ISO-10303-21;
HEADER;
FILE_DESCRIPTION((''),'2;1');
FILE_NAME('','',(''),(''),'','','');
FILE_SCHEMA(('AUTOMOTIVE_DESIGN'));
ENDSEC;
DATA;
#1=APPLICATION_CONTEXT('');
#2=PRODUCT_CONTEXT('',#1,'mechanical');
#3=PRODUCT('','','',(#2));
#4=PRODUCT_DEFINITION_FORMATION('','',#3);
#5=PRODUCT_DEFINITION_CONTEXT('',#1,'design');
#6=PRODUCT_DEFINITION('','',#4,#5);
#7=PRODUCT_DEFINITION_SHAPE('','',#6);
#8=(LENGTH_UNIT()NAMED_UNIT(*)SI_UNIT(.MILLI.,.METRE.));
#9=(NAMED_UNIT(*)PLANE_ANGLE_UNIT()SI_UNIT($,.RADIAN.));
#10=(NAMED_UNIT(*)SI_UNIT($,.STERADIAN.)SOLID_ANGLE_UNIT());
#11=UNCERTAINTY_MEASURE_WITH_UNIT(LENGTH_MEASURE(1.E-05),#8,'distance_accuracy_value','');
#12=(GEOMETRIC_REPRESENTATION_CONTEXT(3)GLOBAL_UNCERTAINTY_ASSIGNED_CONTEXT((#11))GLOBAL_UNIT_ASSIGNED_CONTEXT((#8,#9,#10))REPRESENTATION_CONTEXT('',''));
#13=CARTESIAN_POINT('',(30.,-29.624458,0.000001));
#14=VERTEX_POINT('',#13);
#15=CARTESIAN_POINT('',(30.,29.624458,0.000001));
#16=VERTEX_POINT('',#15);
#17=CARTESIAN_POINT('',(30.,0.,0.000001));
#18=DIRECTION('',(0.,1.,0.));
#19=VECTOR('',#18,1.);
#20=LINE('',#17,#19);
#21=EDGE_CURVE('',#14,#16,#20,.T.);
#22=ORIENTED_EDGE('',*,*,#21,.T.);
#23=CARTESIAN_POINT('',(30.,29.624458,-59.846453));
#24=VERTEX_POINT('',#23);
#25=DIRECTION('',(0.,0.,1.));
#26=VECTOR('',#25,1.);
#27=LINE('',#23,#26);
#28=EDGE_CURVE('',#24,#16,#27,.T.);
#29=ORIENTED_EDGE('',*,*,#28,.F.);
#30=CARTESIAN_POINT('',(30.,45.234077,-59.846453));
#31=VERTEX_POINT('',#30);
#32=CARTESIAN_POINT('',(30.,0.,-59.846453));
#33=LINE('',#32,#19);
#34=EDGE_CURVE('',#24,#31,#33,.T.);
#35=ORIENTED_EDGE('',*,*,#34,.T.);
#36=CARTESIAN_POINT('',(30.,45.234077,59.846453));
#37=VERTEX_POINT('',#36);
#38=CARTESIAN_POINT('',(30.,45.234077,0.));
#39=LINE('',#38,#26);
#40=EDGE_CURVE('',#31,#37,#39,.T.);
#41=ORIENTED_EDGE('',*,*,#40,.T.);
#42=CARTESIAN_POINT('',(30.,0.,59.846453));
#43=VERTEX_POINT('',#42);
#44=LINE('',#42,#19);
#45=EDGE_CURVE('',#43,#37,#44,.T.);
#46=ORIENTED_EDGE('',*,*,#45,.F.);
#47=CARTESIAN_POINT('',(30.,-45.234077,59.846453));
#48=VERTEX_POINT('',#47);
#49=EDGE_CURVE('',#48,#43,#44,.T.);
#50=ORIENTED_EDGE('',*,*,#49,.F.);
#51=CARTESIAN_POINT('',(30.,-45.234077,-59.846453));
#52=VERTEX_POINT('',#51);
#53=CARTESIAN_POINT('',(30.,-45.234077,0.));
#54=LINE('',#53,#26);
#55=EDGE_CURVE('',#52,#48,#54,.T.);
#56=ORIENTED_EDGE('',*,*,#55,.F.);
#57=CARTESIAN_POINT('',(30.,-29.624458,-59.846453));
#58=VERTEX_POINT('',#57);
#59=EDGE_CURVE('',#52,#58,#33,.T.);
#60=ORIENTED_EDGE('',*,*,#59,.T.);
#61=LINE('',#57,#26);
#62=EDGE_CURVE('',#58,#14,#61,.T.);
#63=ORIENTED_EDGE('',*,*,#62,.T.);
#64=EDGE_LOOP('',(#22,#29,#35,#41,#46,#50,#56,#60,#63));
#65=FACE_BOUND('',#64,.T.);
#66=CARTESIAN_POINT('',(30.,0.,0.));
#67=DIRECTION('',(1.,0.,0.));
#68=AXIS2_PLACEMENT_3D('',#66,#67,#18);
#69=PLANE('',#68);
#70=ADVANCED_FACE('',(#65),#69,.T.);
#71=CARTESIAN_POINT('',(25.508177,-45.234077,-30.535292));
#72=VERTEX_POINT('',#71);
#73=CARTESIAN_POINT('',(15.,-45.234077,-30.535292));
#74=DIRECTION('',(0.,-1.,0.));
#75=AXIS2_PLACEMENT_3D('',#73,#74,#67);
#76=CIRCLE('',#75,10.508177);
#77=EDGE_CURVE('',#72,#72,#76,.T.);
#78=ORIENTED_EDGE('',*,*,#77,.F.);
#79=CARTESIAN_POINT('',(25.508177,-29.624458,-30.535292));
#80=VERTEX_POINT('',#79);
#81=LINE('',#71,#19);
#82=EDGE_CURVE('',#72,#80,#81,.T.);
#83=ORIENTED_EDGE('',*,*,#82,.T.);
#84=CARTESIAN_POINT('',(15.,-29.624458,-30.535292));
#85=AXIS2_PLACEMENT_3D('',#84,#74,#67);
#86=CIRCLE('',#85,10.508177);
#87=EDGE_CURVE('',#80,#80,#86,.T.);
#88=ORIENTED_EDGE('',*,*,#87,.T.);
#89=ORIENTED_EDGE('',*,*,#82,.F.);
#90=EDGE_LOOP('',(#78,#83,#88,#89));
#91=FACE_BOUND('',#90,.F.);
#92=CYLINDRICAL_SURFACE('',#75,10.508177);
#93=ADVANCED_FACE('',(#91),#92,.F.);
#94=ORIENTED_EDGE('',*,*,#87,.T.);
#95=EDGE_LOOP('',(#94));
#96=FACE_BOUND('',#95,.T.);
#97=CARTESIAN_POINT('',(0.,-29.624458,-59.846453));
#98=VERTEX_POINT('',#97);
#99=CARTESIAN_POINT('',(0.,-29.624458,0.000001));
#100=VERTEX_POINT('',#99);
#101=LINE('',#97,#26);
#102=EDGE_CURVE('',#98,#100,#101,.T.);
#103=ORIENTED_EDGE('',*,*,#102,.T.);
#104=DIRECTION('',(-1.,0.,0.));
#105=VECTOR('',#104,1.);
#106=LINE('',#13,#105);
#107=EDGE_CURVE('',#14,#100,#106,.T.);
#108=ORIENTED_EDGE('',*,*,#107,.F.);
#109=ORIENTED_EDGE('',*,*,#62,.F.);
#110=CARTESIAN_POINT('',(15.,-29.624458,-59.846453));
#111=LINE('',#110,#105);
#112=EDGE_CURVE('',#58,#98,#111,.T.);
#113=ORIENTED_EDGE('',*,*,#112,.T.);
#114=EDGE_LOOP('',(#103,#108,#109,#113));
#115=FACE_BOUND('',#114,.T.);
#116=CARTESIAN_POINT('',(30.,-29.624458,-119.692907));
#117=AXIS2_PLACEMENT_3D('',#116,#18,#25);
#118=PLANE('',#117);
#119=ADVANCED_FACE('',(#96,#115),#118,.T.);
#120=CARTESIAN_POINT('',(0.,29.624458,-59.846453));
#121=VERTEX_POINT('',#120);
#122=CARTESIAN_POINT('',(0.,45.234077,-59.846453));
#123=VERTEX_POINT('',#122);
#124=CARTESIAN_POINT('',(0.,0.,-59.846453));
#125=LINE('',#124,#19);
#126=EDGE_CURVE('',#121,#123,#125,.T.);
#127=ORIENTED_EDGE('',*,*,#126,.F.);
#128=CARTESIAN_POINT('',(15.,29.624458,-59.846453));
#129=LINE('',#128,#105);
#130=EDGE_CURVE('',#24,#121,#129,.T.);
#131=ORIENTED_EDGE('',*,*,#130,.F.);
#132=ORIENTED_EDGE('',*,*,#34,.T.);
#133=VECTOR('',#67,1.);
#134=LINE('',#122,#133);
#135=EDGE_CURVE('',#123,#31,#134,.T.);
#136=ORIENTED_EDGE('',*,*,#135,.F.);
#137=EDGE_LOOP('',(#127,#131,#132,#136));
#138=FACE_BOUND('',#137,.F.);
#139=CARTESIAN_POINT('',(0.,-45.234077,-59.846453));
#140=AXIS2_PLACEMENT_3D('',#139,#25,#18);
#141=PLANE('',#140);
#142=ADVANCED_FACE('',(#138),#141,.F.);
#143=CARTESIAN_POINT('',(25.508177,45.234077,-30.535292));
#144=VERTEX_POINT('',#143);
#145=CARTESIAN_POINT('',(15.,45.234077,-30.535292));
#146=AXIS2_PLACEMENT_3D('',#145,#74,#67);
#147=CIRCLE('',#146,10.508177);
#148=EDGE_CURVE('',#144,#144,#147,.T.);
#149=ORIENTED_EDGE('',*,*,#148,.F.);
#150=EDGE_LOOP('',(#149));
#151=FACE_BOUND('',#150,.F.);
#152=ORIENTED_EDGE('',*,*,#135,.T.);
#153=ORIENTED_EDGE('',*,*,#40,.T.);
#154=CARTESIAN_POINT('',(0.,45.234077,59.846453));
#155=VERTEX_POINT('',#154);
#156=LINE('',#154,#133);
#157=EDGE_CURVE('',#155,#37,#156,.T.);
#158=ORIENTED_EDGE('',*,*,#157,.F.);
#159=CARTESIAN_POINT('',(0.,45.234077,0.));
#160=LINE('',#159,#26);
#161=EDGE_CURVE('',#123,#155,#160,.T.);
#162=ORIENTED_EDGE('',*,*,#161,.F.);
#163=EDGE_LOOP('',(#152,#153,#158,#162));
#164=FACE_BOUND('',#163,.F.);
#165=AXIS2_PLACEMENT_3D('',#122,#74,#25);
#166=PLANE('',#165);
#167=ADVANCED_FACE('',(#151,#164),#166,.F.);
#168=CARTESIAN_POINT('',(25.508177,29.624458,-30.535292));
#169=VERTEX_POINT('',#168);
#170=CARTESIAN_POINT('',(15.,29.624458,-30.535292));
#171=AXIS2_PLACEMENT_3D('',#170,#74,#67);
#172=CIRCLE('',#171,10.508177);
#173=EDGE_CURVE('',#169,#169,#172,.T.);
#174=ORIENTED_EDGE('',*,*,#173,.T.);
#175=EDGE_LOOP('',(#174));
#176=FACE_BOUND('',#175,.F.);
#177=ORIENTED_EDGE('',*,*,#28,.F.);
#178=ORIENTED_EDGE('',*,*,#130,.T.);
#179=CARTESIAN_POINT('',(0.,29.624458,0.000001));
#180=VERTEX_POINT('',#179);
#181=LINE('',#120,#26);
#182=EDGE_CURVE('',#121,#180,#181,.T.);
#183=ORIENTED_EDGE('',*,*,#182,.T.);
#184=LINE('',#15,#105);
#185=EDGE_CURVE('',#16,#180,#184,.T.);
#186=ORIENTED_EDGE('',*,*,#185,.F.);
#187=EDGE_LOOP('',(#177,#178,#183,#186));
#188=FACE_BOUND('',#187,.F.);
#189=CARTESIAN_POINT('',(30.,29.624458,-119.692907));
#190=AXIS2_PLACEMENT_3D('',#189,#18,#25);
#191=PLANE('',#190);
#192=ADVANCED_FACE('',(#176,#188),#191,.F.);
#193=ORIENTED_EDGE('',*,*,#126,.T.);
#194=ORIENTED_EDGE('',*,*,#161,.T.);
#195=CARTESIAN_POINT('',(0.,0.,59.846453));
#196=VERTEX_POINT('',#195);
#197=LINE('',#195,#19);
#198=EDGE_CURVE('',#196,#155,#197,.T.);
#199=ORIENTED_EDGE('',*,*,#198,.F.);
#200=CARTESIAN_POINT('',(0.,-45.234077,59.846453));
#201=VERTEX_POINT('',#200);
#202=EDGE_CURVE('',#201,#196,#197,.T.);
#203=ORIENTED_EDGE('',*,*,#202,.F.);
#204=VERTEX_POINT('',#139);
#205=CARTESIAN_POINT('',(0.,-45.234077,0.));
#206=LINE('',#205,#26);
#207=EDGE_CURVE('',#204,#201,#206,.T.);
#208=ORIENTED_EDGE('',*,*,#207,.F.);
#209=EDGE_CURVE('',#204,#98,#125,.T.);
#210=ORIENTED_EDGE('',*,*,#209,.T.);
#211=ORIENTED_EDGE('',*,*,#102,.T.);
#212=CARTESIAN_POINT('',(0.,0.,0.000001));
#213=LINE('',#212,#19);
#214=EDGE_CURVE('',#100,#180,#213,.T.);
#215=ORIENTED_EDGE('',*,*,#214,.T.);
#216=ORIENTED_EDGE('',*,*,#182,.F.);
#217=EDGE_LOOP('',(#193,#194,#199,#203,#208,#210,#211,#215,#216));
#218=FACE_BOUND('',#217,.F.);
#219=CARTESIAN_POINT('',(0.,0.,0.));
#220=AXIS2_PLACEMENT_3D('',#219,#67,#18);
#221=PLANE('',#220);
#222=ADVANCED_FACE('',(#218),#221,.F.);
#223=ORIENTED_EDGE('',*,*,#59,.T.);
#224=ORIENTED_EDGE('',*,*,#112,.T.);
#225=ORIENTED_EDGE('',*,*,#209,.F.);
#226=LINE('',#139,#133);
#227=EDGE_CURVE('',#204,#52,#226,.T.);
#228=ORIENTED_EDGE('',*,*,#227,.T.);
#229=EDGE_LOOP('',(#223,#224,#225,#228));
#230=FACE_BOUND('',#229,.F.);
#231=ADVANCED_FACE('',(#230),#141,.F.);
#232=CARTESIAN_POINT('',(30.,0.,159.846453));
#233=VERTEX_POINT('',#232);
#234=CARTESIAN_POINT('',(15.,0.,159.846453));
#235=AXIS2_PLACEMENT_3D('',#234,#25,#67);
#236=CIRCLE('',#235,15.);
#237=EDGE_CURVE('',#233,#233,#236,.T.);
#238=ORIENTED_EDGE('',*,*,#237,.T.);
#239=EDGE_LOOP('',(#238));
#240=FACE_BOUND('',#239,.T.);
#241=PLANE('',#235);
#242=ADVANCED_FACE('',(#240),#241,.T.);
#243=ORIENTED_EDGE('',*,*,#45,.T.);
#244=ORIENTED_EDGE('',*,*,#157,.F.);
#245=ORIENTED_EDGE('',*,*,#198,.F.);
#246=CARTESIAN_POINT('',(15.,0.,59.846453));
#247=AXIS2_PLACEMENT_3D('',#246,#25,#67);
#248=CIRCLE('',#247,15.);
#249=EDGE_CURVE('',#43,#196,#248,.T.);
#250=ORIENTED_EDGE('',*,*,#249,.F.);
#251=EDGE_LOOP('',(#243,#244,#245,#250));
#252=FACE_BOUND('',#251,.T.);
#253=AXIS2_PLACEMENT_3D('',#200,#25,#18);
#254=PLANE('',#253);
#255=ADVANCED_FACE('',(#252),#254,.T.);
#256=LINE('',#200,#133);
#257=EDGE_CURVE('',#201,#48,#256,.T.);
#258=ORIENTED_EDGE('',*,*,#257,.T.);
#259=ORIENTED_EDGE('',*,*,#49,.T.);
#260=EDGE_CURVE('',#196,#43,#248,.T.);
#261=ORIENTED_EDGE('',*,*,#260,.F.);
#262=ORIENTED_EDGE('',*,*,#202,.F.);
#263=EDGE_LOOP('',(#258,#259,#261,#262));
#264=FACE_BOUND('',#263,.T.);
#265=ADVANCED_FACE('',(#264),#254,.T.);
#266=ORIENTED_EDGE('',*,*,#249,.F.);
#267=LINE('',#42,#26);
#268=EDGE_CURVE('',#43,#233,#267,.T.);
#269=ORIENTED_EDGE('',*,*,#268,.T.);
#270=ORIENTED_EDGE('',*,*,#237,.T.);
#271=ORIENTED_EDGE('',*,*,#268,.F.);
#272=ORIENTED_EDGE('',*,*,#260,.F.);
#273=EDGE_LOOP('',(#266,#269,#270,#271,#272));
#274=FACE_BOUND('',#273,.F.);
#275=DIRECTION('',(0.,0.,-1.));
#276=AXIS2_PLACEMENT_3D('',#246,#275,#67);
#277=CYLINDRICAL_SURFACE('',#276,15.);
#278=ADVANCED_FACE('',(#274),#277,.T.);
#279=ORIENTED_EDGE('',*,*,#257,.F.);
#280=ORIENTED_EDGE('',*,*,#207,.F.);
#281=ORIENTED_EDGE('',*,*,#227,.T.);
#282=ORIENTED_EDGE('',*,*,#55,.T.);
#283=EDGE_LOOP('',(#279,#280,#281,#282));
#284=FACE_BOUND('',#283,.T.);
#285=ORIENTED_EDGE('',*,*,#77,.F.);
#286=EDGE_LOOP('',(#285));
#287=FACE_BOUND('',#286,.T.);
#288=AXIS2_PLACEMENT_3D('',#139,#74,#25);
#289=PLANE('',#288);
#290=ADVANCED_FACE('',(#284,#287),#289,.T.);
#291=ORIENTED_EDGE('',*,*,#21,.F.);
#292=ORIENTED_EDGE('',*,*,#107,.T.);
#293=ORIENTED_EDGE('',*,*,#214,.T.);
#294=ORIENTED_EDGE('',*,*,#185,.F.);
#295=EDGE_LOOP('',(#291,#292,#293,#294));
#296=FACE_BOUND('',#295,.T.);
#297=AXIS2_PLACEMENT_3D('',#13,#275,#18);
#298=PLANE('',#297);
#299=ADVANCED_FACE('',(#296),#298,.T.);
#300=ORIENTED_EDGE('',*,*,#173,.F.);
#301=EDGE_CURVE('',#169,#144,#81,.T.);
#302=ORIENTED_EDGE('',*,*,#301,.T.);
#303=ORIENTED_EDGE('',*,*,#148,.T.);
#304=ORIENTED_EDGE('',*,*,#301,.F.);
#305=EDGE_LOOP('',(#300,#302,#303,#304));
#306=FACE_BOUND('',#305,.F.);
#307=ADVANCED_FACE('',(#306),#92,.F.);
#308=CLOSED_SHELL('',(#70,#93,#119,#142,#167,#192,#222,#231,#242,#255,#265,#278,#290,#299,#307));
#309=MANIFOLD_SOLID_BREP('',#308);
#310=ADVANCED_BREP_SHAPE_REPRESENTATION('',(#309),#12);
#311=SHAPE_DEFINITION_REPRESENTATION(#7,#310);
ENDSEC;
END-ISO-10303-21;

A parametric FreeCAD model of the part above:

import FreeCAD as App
import Part
import Sketcher

V = App.Vector


def add_polygon(sketch, points):
    """Adds a closed chain of lines whose ends are joined by coincident constraints."""
    first, n = sketch.GeometryCount, len(points)
    for a, b in zip(points, points[1:] + points[:1]):
        sketch.addGeometry(Part.LineSegment(App.Vector(*a, 0), App.Vector(*b, 0)), False)
    for i in range(n):
        sketch.addConstraint(Sketcher.Constraint("Coincident", first + i, 2, first + (i + 1) % n, 1))

doc = App.newDocument("Part")
params = doc.addObject("Spreadsheet::Sheet", "Params")
for row, (alias, value) in enumerate([
    ("pad1_length", "30 mm"),
    ("pocket1_length", "30 mm"),
    ("sketch3_diameter", "30 mm"),
    ("pad2_length", "100 mm"),
    ("pocket2_length", "100 mm"),
], start=1):
    params.set(f"A{row}", alias)
    params.set(f"B{row}", "=" + value)
    params.setAlias(f"B{row}", alias)

body = doc.addObject("PartDesign::Body", "Body")

sketch1 = body.newObject("Sketcher::SketchObject", "Sketch")
sketch1.AttachmentSupport = (doc.getObject("YZ_Plane"), [""])
sketch1.MapMode = "FlatFace"
add_polygon(sketch1, [(-45, 60), (-45, -60), (45, -60), (45, 60)])
sketch1.addConstraint(Sketcher.Constraint("Vertical", 0))
sketch1.addConstraint(Sketcher.Constraint("Horizontal", 1))
sketch1.addConstraint(Sketcher.Constraint("Vertical", 2))
sketch1.addConstraint(Sketcher.Constraint("Horizontal", 3))
sketch1.addConstraint(Sketcher.Constraint("Symmetric", 0, 2, 2, 2, -1, 1))
sketch1.addConstraint(Sketcher.Constraint("DistanceX", 1, 1, 1, 2, 90.468154))
sketch1.addConstraint(Sketcher.Constraint("DistanceY", 0, 2, 0, 1, 119.692906))
pad1 = body.newObject("PartDesign::Pad", "Pad")
pad1.Profile = sketch1
pad1.setExpression("Length", "Params.pad1_length")

sketch2 = body.newObject("Sketcher::SketchObject", "Sketch001")
sketch2.AttachmentSupport = (doc.getObject("YZ_Plane"), [""])
sketch2.MapMode = "FlatFace"
sketch2.AttachmentOffset = App.Placement(V(0, 0, 30), App.Rotation())
add_polygon(sketch2, [(-30, 0), (-30, -120), (30, -120), (30, 0)])
sketch2.addConstraint(Sketcher.Constraint("Vertical", 0))
sketch2.addConstraint(Sketcher.Constraint("Horizontal", 1))
sketch2.addConstraint(Sketcher.Constraint("Vertical", 2))
sketch2.addConstraint(Sketcher.Constraint("Horizontal", 3))
sketch2.addConstraint(Sketcher.Constraint("Symmetric", 2, 2, 3, 2, -1, 1))
sketch2.addConstraint(Sketcher.Constraint("DistanceX", 1, 1, 1, 2, 59.248916))
sketch2.addConstraint(Sketcher.Constraint("DistanceY", 0, 2, 0, 1, 119.692907))
pocket1 = body.newObject("PartDesign::Pocket", "Pocket")
pocket1.Profile = sketch2
pocket1.setExpression("Length", "Params.pocket1_length")

sketch3 = body.newObject("Sketcher::SketchObject", "Sketch002")
sketch3.AttachmentSupport = (doc.getObject("XY_Plane"), [""])
sketch3.MapMode = "FlatFace"
sketch3.AttachmentOffset = App.Placement(V(0, 0, 59.846453), App.Rotation())
sketch3.addGeometry(Part.Circle(V(15, 0, 0), V(0, 0, 1), 15), False)
sketch3.addConstraint(Sketcher.Constraint("PointOnObject", 0, 3, -1))
sketch3.addConstraint(Sketcher.Constraint("Diameter", 0, 30.0))
sketch3.addConstraint(Sketcher.Constraint("DistanceX", -1, 1, 0, 3, 15.0))
sketch3.setExpression("Constraints[1]", "Params.sketch3_diameter")
pad2 = body.newObject("PartDesign::Pad", "Pad001")
pad2.Profile = sketch3
pad2.setExpression("Length", "Params.pad2_length")

sketch4 = body.newObject("Sketcher::SketchObject", "Sketch003")
sketch4.AttachmentSupport = (doc.getObject("XZ_Plane"), [""])
sketch4.MapMode = "FlatFace"
sketch4.AttachmentOffset = App.Placement(V(0, 0, 45.234077), App.Rotation())
sketch4.addGeometry(Part.Circle(V(15, -31, 0), V(0, 0, 1), 11), False)
sketch4.addConstraint(Sketcher.Constraint("DistanceX", -1, 1, 0, 3, 15.0))
sketch4.addConstraint(Sketcher.Constraint("Diameter", 0, 21.016354))
sketch4.addConstraint(Sketcher.Constraint("DistanceY", 0, 3, -1, 1, 30.535292))
pocket2 = body.newObject("PartDesign::Pocket", "Pocket001")
pocket2.Profile = sketch4
pocket2.setExpression("Length", "Params.pocket2_length")

doc.recompute()
